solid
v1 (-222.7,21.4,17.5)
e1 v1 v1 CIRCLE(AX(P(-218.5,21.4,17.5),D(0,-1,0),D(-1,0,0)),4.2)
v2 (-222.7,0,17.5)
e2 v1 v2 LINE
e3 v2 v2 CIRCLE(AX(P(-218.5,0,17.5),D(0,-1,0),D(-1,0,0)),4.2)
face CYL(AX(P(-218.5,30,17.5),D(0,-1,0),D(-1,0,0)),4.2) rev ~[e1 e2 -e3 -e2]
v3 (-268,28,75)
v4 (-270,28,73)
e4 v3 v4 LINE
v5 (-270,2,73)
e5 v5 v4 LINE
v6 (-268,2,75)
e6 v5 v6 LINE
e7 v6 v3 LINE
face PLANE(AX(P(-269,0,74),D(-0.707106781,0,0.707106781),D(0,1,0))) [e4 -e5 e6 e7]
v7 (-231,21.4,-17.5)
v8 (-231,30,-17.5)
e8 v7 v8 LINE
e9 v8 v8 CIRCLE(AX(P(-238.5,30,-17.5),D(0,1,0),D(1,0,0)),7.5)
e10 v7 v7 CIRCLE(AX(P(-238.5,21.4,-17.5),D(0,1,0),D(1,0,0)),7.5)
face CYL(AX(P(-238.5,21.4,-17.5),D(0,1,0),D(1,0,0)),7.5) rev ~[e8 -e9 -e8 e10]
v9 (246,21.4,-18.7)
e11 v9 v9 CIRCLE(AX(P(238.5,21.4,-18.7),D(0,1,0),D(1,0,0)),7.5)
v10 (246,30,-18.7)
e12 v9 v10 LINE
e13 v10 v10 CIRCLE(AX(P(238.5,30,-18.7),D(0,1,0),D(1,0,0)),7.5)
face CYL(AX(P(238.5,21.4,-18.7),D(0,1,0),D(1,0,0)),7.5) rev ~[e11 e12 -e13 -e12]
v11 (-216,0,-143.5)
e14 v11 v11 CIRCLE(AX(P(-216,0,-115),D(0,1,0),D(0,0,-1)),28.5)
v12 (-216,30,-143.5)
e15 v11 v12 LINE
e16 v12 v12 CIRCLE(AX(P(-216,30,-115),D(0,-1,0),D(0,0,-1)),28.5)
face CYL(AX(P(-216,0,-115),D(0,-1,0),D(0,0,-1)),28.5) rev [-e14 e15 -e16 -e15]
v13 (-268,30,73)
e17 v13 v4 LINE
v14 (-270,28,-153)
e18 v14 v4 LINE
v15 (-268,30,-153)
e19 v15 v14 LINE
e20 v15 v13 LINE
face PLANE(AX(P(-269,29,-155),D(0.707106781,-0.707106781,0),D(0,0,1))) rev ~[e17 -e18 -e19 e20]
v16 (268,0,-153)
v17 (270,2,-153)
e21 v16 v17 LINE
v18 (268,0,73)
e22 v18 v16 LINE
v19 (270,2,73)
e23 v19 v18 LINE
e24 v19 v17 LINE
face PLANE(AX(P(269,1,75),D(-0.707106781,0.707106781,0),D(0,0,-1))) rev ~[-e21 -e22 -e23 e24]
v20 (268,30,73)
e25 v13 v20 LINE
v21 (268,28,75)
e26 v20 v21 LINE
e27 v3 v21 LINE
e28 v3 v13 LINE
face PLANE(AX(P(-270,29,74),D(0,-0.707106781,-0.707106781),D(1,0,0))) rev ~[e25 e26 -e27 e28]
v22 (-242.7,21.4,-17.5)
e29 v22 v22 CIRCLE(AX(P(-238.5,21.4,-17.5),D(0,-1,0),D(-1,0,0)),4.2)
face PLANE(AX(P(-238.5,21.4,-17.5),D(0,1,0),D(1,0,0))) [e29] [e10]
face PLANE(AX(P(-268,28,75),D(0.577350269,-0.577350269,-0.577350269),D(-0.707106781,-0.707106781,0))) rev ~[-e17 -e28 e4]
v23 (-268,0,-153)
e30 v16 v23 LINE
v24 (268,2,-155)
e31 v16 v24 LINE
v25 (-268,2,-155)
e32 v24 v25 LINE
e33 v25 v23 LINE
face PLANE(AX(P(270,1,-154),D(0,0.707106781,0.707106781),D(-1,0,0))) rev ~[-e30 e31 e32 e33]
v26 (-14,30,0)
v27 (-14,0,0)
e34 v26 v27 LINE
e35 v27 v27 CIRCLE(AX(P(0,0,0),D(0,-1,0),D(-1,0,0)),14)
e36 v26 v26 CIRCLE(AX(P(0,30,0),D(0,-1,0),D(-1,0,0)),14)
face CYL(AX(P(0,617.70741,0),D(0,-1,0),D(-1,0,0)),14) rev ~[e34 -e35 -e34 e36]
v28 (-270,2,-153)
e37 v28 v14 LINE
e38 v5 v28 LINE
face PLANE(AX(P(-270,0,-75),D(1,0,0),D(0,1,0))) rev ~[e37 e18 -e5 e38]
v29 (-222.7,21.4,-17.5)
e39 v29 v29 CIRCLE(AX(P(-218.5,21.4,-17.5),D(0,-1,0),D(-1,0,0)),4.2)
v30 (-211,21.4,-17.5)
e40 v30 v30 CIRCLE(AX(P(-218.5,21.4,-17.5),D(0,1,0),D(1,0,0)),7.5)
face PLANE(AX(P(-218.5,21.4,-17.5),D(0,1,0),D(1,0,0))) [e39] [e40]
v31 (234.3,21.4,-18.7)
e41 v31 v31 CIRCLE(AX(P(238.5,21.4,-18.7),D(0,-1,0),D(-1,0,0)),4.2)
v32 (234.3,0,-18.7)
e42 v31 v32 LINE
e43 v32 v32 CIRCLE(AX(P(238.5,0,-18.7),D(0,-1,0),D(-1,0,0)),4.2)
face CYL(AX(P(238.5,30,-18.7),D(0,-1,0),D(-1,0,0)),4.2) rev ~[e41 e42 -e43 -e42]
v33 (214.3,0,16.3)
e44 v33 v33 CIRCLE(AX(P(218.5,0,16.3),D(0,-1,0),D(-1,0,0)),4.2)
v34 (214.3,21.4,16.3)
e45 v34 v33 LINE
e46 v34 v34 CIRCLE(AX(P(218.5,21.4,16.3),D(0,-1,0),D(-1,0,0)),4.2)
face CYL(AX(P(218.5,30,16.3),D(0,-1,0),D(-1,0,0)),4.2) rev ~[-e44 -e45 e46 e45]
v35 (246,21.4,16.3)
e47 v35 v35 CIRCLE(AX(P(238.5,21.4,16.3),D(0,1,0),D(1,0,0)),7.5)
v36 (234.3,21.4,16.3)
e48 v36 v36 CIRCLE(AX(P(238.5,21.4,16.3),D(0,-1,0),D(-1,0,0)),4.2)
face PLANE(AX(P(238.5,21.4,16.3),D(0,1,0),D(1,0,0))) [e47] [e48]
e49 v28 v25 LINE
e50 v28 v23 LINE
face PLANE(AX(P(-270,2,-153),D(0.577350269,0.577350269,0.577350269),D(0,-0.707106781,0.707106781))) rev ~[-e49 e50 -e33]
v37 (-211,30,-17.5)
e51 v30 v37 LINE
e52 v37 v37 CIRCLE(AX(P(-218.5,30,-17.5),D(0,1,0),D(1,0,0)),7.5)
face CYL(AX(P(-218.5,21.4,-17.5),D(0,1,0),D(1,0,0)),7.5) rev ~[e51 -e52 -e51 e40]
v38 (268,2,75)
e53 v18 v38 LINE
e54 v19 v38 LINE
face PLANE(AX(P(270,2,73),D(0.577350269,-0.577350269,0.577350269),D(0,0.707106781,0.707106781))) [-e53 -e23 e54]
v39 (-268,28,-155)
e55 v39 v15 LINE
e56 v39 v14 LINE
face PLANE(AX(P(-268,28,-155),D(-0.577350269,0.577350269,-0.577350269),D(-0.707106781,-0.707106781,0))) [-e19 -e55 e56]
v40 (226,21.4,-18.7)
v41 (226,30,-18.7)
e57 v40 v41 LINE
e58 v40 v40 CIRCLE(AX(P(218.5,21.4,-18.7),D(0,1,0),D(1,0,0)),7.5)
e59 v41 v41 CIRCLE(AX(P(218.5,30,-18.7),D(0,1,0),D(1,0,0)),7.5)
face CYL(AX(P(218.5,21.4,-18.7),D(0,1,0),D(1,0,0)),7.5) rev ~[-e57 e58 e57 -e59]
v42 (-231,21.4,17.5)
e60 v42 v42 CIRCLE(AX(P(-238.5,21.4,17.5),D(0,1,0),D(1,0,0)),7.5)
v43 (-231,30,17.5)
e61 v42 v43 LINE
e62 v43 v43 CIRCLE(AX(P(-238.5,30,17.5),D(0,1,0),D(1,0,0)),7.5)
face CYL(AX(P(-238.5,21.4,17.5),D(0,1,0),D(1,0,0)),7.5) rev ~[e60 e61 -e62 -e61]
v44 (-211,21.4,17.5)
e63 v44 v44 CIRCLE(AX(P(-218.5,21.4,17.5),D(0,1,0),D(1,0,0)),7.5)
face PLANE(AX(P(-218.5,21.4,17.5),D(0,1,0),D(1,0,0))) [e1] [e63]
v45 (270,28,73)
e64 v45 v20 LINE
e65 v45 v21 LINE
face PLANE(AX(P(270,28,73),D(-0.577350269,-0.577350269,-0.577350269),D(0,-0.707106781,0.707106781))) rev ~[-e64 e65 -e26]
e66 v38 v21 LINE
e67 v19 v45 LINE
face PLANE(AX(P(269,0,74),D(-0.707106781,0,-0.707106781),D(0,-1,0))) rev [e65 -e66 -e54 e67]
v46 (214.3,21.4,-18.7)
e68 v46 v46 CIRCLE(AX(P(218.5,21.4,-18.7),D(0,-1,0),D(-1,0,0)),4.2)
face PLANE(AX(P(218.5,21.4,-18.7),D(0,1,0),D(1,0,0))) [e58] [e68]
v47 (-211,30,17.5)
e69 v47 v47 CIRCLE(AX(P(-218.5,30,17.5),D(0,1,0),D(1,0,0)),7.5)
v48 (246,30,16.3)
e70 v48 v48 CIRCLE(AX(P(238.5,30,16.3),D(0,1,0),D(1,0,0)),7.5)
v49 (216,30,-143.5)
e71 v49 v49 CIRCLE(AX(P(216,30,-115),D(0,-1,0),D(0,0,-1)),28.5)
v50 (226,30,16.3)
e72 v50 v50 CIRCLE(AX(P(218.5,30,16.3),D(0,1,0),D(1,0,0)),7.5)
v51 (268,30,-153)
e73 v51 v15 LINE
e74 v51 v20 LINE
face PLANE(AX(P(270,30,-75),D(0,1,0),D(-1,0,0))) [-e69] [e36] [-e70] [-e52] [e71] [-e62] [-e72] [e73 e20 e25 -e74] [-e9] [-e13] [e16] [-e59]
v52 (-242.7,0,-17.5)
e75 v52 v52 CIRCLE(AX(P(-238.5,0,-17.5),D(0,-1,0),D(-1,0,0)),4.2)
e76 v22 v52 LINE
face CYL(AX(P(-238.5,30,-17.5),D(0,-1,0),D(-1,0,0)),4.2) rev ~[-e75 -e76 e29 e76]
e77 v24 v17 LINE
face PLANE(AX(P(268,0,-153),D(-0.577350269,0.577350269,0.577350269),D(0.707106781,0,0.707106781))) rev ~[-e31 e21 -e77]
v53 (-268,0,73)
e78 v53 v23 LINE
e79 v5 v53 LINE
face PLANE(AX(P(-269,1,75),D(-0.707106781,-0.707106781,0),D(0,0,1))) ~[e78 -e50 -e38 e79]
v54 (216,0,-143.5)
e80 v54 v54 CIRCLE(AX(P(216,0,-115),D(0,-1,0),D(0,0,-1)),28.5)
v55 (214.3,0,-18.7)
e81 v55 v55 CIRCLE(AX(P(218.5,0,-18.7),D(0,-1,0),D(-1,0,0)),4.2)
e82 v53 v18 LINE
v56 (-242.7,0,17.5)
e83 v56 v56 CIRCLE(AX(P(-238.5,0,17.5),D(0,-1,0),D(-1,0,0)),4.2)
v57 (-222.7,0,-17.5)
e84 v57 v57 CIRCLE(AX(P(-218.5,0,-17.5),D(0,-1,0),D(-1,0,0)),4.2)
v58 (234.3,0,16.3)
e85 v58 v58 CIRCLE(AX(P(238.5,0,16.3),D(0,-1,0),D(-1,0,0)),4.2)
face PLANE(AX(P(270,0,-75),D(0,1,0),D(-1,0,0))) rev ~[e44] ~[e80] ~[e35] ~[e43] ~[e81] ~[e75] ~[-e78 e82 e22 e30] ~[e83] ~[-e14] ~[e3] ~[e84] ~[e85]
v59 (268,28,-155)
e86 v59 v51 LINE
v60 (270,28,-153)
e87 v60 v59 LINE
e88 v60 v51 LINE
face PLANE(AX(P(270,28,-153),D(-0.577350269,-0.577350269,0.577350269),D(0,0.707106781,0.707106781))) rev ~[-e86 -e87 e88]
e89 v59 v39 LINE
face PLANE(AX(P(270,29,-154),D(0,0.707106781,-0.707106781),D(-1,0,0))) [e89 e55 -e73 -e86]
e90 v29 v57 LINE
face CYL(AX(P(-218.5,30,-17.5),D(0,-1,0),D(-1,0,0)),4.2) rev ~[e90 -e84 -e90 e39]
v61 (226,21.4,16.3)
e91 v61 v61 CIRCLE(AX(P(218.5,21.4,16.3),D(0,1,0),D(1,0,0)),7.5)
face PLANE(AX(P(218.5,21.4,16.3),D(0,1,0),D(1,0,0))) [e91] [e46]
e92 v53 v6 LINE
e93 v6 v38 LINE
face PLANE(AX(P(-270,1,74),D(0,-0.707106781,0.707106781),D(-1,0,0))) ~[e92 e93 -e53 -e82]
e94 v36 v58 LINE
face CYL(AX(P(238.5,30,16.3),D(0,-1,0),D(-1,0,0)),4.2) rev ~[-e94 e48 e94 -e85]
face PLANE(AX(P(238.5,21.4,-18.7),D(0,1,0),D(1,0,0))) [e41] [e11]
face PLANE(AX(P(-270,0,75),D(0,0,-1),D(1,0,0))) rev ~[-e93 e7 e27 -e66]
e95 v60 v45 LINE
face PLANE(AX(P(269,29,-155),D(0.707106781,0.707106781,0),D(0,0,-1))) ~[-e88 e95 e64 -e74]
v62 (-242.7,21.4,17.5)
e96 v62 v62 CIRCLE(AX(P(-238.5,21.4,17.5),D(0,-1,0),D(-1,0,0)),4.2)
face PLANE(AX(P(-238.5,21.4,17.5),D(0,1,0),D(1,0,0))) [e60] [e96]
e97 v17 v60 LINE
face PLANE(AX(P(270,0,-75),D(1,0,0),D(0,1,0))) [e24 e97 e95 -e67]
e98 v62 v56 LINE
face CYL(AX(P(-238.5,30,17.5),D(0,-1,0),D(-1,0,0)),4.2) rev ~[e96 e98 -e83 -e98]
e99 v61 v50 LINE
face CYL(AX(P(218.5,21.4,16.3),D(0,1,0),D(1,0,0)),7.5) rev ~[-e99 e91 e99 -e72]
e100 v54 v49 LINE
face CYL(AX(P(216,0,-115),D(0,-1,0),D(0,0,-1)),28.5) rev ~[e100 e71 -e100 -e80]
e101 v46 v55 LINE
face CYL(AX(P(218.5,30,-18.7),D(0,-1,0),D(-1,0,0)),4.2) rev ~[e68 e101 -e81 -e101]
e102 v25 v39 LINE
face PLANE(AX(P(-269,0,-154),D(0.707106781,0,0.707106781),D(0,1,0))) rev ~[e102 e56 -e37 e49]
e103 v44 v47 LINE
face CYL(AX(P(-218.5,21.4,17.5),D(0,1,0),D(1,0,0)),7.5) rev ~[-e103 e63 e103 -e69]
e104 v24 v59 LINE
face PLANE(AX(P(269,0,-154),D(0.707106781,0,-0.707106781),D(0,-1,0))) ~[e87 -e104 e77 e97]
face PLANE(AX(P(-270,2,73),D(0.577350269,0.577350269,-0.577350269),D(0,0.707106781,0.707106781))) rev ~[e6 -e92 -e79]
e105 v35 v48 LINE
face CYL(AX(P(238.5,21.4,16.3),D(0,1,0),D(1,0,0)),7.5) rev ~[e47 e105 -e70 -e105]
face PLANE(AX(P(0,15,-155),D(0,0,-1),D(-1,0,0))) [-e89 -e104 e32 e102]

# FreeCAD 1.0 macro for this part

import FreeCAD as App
import Part
import Sketcher
from FreeCAD import Vector
Q = App.Units.Quantity


def edges_at(feature, points):
    """Names of the edges that pass closest to the given points."""
    edges = feature.Shape.Edges
    near = lambda p: min(range(len(edges)), key=lambda i: edges[i].distToShape(Part.Vertex(*p))[0])
    return sorted({f"Edge{near(p) + 1}" for p in points})

doc = App.newDocument("Part")
params = doc.addObject("Spreadsheet::Sheet", "Params")
for row, (alias, value) in enumerate([
    ("sketch1_width", "540 mm"),
    ("sketch1_height", "150 mm"),
    ("pad1_length", "30 mm"),
    ("sketch2_width", "540 mm"),
    ("sketch2_height", "30 mm"),
    ("pad2_length", "80 mm"),
    ("sketch3_diameter", "57 mm"),
    ("chamfer_size", "2 mm"),
    ("sketch4_diameter", "28 mm"),
    ("hole_diameter", "28 mm"),
    ("sketch5_diameter", "8.4 mm"),
    ("hole2_diameter", "8.4 mm"),
    ("hole2_cbore_diameter", "15 mm"),
    ("hole2_cbore_depth", "8.6 mm"),
], start=1):
    params.set(f"A{row}", alias)
    params.set(f"B{row}", "=" + value)
    params.setAlias(f"B{row}", alias)

body = doc.addObject("PartDesign::Body", "Body")

# Sketch on XZ plane
sketch1 = body.newObject("Sketcher::SketchObject", "Sketch")
sketch1.AttachmentSupport = (doc.getObject("XZ_Plane"), [""])
sketch1.MapMode = "FlatFace"
sketch1.addGeometry([
    Part.LineSegment(Vector(-270, -75, 0), Vector(-270, 75, 0)),
    Part.LineSegment(Vector(-270, 75, 0), Vector(270, 75, 0)),
    Part.LineSegment(Vector(270, 75, 0), Vector(270, -75, 0)),
    Part.LineSegment(Vector(270, -75, 0), Vector(-270, -75, 0)),
], False)
sketch1.addConstraint([
    Sketcher.Constraint("Coincident", 0, 2, 1, 1),
    Sketcher.Constraint("Coincident", 1, 2, 2, 1),
    Sketcher.Constraint("Coincident", 2, 2, 3, 1),
    Sketcher.Constraint("Coincident", 3, 2, 0, 1),
    Sketcher.Constraint("Vertical", 0),
    Sketcher.Constraint("Horizontal", 1),
    Sketcher.Constraint("Vertical", 2),
    Sketcher.Constraint("Horizontal", 3),
    Sketcher.Constraint("Symmetric", 0, 2, 2, 2, -1, 1),
    Sketcher.Constraint("DistanceX", 1, 1, 1, 2, Q("540 mm")),
    Sketcher.Constraint("DistanceY", 0, 1, 0, 2, Q("150 mm")),
])
sketch1.setExpression("Constraints[9]", "Params.sketch1_width")
sketch1.setExpression("Constraints[10]", "Params.sketch1_height")
pad1 = body.newObject("PartDesign::Pad", "Pad")
pad1.Profile = sketch1
pad1.setExpression("Length", "Params.pad1_length")
pad1.Reversed = True

# Sketch on XY plane
sketch2 = body.newObject("Sketcher::SketchObject", "Sketch001")
sketch2.AttachmentSupport = (doc.getObject("XY_Plane"), [""])
sketch2.MapMode = "FlatFace"
sketch2.AttachmentOffset = App.Placement(Vector(0, 0, -75), App.Rotation())
sketch2.addGeometry([
    Part.LineSegment(Vector(270, 30, 0), Vector(270, 0, 0)),
    Part.LineSegment(Vector(270, 0, 0), Vector(-270, 0, 0)),
    Part.LineSegment(Vector(-270, 0, 0), Vector(-270, 30, 0)),
    Part.LineSegment(Vector(-270, 30, 0), Vector(270, 30, 0)),
], False)
sketch2.addConstraint([
    Sketcher.Constraint("Coincident", 0, 2, 1, 1),
    Sketcher.Constraint("Coincident", 1, 2, 2, 1),
    Sketcher.Constraint("Coincident", 2, 2, 3, 1),
    Sketcher.Constraint("Coincident", 3, 2, 0, 1),
    Sketcher.Constraint("Vertical", 0),
    Sketcher.Constraint("Horizontal", 1),
    Sketcher.Constraint("Vertical", 2),
    Sketcher.Constraint("Horizontal", 3),
    Sketcher.Constraint("Symmetric", 0, 2, 1, 2, -1, 1),
    Sketcher.Constraint("DistanceX", 1, 2, 1, 1, Q("540 mm")),
    Sketcher.Constraint("DistanceY", 0, 2, 0, 1, Q("30 mm")),
])
sketch2.setExpression("Constraints[9]", "Params.sketch2_width")
sketch2.setExpression("Constraints[10]", "Params.sketch2_height")
pad2 = body.newObject("PartDesign::Pad", "Pad001")
pad2.Profile = sketch2
pad2.setExpression("Length", "Params.pad2_length")
pad2.Reversed = True

# Sketch on XZ plane
sketch3 = body.newObject("Sketcher::SketchObject", "Sketch002")
sketch3.AttachmentSupport = (doc.getObject("XZ_Plane"), [""])
sketch3.MapMode = "FlatFace"
sketch3.addGeometry(Part.Circle(Vector(216, -115, 0), Vector(0, 0, 1), 28.5), False)
sketch3.addConstraint([
    Sketcher.Constraint("Diameter", 0, Q("57 mm")),
    Sketcher.Constraint("DistanceX", -1, 1, 0, 3, Q("216 mm")),
    Sketcher.Constraint("DistanceY", 0, 3, -1, 1, Q("115 mm")),
])
sketch3.setExpression("Constraints[0]", "Params.sketch3_diameter")
pocket1 = body.newObject("PartDesign::Pocket", "Pocket")
pocket1.Profile = sketch3
pocket1.Type = "ThroughAll"
doc.recompute()

mirrored = body.newObject("PartDesign::Mirrored", "Mirrored")
mirrored.Originals = [pocket1]
mirrored.MirrorPlane = (doc.getObject("YZ_Plane"), [""])
body.Tip = mirrored
doc.recompute()

chamfer = body.newObject("PartDesign::Chamfer", "Chamfer")
chamfer.Base = (mirrored, edges_at(mirrored, [
    (-270, 30, -40),
    (0, 30, -155),
    (270, 15, -155),
    (0, 0, -155),
    (0, 30, 75),
    (-270, 15, -155),
    (270, 30, -40),
    (0, 0, 75),
    (-270, 0, -40),
    (270, 0, -40),
    (270, 15, 75),
    (-270, 15, 75),
]))
chamfer.setExpression("Size", "Params.chamfer_size")

# Sketch on XZ plane
sketch4 = body.newObject("Sketcher::SketchObject", "Sketch003")
sketch4.AttachmentSupport = (doc.getObject("XZ_Plane"), [""])
sketch4.MapMode = "FlatFace"
sketch4.AttachmentOffset = App.Placement(Vector(0, 0, -30), App.Rotation())
sketch4.addGeometry(Part.Circle(Vector(0, 0, 0), Vector(0, 0, 1), 14), False)
sketch4.addConstraint([
    Sketcher.Constraint("Coincident", 0, 3, -1, 1),
    Sketcher.Constraint("Diameter", 0, Q("28 mm")),
])
sketch4.setExpression("Constraints[1]", "Params.sketch4_diameter")
doc.recompute()
hole = body.newObject("PartDesign::Hole", "Hole")
hole.Profile = sketch4
hole.ThreadType = "None"
hole.setExpression("Diameter", "Params.hole_diameter")
hole.DepthType = "ThroughAll"
hole.Reversed = True

# Sketch on XZ plane
sketch5 = body.newObject("Sketcher::SketchObject", "Sketch004")
sketch5.AttachmentSupport = (doc.getObject("XZ_Plane"), [""])
sketch5.MapMode = "FlatFace"
sketch5.AttachmentOffset = App.Placement(Vector(0, 0, -30), App.Rotation())
sketch5.addGeometry([
    Part.Circle(Vector(-238.5, -17.5, 0), Vector(0, 0, 1), 4.2),  # 0
    Part.Circle(Vector(-218.5, -17.5, 0), Vector(0, 0, 1), 4.2),  # 1
    Part.Circle(Vector(-238.5, 17.5, 0), Vector(0, 0, 1), 4.2),  # 2
    Part.Circle(Vector(-218.5, 17.5, 0), Vector(0, 0, 1), 4.2),  # 3
    Part.Circle(Vector(218.5, -18.7, 0), Vector(0, 0, 1), 4.2),  # 4
    Part.Circle(Vector(238.5, -18.7, 0), Vector(0, 0, 1), 4.2),  # 5
    Part.Circle(Vector(218.5, 16.3, 0), Vector(0, 0, 1), 4.2),  # 6
    Part.Circle(Vector(238.5, 16.3, 0), Vector(0, 0, 1), 4.2),  # 7
], False)
sketch5.addConstraint([
    Sketcher.Constraint("Equal", 0, 1),
    Sketcher.Constraint("Equal", 1, 2),
    Sketcher.Constraint("Equal", 2, 3),
    Sketcher.Constraint("Equal", 3, 4),
    Sketcher.Constraint("Equal", 4, 5),
    Sketcher.Constraint("Equal", 5, 6),
    Sketcher.Constraint("Equal", 6, 7),
    Sketcher.Constraint("Symmetric", 0, 3, 2, 3, -1),
    Sketcher.Constraint("Symmetric", 1, 3, 3, 3, -1),
    Sketcher.Constraint("Horizontal", 0, 3, 1, 3),
    Sketcher.Constraint("Horizontal", 4, 3, 5, 3),
    Sketcher.Constraint("Horizontal", 6, 3, 7, 3),
    Sketcher.Constraint("Vertical", 4, 3, 6, 3),
    Sketcher.Constraint("Vertical", 5, 3, 7, 3),
    Sketcher.Constraint("Diameter", 0, Q("8.4 mm")),
    Sketcher.Constraint("DistanceX", 0, 3, 1, 3, Q("20 mm")),
    Sketcher.Constraint("DistanceY", 0, 3, 2, 3, Q("35 mm")),
    Sketcher.Constraint("DistanceX", 1, 3, 4, 3, Q("437 mm")),
    Sketcher.Constraint("DistanceX", 4, 3, 5, 3, Q("20 mm")),
    Sketcher.Constraint("DistanceY", 4, 3, 6, 3, Q("35 mm")),
    Sketcher.Constraint("DistanceX", 0, 3, -1, 1, Q("238.5 mm")),
    Sketcher.Constraint("DistanceY", 4, 3, -1, 1, Q("18.7 mm")),
])
sketch5.setExpression("Constraints[14]", "Params.sketch5_diameter")
doc.recompute()
hole2 = body.newObject("PartDesign::Hole", "Hole001")
hole2.Profile = sketch5
hole2.ThreadType = "None"
hole2.setExpression("Diameter", "Params.hole2_diameter")
hole2.DepthType = "ThroughAll"
hole2.HoleCutType = "Counterbore"
hole2.setExpression("HoleCutDiameter", "Params.hole2_cbore_diameter")
hole2.setExpression("HoleCutDepth", "Params.hole2_cbore_depth")
hole2.Reversed = True

doc.recompute()
